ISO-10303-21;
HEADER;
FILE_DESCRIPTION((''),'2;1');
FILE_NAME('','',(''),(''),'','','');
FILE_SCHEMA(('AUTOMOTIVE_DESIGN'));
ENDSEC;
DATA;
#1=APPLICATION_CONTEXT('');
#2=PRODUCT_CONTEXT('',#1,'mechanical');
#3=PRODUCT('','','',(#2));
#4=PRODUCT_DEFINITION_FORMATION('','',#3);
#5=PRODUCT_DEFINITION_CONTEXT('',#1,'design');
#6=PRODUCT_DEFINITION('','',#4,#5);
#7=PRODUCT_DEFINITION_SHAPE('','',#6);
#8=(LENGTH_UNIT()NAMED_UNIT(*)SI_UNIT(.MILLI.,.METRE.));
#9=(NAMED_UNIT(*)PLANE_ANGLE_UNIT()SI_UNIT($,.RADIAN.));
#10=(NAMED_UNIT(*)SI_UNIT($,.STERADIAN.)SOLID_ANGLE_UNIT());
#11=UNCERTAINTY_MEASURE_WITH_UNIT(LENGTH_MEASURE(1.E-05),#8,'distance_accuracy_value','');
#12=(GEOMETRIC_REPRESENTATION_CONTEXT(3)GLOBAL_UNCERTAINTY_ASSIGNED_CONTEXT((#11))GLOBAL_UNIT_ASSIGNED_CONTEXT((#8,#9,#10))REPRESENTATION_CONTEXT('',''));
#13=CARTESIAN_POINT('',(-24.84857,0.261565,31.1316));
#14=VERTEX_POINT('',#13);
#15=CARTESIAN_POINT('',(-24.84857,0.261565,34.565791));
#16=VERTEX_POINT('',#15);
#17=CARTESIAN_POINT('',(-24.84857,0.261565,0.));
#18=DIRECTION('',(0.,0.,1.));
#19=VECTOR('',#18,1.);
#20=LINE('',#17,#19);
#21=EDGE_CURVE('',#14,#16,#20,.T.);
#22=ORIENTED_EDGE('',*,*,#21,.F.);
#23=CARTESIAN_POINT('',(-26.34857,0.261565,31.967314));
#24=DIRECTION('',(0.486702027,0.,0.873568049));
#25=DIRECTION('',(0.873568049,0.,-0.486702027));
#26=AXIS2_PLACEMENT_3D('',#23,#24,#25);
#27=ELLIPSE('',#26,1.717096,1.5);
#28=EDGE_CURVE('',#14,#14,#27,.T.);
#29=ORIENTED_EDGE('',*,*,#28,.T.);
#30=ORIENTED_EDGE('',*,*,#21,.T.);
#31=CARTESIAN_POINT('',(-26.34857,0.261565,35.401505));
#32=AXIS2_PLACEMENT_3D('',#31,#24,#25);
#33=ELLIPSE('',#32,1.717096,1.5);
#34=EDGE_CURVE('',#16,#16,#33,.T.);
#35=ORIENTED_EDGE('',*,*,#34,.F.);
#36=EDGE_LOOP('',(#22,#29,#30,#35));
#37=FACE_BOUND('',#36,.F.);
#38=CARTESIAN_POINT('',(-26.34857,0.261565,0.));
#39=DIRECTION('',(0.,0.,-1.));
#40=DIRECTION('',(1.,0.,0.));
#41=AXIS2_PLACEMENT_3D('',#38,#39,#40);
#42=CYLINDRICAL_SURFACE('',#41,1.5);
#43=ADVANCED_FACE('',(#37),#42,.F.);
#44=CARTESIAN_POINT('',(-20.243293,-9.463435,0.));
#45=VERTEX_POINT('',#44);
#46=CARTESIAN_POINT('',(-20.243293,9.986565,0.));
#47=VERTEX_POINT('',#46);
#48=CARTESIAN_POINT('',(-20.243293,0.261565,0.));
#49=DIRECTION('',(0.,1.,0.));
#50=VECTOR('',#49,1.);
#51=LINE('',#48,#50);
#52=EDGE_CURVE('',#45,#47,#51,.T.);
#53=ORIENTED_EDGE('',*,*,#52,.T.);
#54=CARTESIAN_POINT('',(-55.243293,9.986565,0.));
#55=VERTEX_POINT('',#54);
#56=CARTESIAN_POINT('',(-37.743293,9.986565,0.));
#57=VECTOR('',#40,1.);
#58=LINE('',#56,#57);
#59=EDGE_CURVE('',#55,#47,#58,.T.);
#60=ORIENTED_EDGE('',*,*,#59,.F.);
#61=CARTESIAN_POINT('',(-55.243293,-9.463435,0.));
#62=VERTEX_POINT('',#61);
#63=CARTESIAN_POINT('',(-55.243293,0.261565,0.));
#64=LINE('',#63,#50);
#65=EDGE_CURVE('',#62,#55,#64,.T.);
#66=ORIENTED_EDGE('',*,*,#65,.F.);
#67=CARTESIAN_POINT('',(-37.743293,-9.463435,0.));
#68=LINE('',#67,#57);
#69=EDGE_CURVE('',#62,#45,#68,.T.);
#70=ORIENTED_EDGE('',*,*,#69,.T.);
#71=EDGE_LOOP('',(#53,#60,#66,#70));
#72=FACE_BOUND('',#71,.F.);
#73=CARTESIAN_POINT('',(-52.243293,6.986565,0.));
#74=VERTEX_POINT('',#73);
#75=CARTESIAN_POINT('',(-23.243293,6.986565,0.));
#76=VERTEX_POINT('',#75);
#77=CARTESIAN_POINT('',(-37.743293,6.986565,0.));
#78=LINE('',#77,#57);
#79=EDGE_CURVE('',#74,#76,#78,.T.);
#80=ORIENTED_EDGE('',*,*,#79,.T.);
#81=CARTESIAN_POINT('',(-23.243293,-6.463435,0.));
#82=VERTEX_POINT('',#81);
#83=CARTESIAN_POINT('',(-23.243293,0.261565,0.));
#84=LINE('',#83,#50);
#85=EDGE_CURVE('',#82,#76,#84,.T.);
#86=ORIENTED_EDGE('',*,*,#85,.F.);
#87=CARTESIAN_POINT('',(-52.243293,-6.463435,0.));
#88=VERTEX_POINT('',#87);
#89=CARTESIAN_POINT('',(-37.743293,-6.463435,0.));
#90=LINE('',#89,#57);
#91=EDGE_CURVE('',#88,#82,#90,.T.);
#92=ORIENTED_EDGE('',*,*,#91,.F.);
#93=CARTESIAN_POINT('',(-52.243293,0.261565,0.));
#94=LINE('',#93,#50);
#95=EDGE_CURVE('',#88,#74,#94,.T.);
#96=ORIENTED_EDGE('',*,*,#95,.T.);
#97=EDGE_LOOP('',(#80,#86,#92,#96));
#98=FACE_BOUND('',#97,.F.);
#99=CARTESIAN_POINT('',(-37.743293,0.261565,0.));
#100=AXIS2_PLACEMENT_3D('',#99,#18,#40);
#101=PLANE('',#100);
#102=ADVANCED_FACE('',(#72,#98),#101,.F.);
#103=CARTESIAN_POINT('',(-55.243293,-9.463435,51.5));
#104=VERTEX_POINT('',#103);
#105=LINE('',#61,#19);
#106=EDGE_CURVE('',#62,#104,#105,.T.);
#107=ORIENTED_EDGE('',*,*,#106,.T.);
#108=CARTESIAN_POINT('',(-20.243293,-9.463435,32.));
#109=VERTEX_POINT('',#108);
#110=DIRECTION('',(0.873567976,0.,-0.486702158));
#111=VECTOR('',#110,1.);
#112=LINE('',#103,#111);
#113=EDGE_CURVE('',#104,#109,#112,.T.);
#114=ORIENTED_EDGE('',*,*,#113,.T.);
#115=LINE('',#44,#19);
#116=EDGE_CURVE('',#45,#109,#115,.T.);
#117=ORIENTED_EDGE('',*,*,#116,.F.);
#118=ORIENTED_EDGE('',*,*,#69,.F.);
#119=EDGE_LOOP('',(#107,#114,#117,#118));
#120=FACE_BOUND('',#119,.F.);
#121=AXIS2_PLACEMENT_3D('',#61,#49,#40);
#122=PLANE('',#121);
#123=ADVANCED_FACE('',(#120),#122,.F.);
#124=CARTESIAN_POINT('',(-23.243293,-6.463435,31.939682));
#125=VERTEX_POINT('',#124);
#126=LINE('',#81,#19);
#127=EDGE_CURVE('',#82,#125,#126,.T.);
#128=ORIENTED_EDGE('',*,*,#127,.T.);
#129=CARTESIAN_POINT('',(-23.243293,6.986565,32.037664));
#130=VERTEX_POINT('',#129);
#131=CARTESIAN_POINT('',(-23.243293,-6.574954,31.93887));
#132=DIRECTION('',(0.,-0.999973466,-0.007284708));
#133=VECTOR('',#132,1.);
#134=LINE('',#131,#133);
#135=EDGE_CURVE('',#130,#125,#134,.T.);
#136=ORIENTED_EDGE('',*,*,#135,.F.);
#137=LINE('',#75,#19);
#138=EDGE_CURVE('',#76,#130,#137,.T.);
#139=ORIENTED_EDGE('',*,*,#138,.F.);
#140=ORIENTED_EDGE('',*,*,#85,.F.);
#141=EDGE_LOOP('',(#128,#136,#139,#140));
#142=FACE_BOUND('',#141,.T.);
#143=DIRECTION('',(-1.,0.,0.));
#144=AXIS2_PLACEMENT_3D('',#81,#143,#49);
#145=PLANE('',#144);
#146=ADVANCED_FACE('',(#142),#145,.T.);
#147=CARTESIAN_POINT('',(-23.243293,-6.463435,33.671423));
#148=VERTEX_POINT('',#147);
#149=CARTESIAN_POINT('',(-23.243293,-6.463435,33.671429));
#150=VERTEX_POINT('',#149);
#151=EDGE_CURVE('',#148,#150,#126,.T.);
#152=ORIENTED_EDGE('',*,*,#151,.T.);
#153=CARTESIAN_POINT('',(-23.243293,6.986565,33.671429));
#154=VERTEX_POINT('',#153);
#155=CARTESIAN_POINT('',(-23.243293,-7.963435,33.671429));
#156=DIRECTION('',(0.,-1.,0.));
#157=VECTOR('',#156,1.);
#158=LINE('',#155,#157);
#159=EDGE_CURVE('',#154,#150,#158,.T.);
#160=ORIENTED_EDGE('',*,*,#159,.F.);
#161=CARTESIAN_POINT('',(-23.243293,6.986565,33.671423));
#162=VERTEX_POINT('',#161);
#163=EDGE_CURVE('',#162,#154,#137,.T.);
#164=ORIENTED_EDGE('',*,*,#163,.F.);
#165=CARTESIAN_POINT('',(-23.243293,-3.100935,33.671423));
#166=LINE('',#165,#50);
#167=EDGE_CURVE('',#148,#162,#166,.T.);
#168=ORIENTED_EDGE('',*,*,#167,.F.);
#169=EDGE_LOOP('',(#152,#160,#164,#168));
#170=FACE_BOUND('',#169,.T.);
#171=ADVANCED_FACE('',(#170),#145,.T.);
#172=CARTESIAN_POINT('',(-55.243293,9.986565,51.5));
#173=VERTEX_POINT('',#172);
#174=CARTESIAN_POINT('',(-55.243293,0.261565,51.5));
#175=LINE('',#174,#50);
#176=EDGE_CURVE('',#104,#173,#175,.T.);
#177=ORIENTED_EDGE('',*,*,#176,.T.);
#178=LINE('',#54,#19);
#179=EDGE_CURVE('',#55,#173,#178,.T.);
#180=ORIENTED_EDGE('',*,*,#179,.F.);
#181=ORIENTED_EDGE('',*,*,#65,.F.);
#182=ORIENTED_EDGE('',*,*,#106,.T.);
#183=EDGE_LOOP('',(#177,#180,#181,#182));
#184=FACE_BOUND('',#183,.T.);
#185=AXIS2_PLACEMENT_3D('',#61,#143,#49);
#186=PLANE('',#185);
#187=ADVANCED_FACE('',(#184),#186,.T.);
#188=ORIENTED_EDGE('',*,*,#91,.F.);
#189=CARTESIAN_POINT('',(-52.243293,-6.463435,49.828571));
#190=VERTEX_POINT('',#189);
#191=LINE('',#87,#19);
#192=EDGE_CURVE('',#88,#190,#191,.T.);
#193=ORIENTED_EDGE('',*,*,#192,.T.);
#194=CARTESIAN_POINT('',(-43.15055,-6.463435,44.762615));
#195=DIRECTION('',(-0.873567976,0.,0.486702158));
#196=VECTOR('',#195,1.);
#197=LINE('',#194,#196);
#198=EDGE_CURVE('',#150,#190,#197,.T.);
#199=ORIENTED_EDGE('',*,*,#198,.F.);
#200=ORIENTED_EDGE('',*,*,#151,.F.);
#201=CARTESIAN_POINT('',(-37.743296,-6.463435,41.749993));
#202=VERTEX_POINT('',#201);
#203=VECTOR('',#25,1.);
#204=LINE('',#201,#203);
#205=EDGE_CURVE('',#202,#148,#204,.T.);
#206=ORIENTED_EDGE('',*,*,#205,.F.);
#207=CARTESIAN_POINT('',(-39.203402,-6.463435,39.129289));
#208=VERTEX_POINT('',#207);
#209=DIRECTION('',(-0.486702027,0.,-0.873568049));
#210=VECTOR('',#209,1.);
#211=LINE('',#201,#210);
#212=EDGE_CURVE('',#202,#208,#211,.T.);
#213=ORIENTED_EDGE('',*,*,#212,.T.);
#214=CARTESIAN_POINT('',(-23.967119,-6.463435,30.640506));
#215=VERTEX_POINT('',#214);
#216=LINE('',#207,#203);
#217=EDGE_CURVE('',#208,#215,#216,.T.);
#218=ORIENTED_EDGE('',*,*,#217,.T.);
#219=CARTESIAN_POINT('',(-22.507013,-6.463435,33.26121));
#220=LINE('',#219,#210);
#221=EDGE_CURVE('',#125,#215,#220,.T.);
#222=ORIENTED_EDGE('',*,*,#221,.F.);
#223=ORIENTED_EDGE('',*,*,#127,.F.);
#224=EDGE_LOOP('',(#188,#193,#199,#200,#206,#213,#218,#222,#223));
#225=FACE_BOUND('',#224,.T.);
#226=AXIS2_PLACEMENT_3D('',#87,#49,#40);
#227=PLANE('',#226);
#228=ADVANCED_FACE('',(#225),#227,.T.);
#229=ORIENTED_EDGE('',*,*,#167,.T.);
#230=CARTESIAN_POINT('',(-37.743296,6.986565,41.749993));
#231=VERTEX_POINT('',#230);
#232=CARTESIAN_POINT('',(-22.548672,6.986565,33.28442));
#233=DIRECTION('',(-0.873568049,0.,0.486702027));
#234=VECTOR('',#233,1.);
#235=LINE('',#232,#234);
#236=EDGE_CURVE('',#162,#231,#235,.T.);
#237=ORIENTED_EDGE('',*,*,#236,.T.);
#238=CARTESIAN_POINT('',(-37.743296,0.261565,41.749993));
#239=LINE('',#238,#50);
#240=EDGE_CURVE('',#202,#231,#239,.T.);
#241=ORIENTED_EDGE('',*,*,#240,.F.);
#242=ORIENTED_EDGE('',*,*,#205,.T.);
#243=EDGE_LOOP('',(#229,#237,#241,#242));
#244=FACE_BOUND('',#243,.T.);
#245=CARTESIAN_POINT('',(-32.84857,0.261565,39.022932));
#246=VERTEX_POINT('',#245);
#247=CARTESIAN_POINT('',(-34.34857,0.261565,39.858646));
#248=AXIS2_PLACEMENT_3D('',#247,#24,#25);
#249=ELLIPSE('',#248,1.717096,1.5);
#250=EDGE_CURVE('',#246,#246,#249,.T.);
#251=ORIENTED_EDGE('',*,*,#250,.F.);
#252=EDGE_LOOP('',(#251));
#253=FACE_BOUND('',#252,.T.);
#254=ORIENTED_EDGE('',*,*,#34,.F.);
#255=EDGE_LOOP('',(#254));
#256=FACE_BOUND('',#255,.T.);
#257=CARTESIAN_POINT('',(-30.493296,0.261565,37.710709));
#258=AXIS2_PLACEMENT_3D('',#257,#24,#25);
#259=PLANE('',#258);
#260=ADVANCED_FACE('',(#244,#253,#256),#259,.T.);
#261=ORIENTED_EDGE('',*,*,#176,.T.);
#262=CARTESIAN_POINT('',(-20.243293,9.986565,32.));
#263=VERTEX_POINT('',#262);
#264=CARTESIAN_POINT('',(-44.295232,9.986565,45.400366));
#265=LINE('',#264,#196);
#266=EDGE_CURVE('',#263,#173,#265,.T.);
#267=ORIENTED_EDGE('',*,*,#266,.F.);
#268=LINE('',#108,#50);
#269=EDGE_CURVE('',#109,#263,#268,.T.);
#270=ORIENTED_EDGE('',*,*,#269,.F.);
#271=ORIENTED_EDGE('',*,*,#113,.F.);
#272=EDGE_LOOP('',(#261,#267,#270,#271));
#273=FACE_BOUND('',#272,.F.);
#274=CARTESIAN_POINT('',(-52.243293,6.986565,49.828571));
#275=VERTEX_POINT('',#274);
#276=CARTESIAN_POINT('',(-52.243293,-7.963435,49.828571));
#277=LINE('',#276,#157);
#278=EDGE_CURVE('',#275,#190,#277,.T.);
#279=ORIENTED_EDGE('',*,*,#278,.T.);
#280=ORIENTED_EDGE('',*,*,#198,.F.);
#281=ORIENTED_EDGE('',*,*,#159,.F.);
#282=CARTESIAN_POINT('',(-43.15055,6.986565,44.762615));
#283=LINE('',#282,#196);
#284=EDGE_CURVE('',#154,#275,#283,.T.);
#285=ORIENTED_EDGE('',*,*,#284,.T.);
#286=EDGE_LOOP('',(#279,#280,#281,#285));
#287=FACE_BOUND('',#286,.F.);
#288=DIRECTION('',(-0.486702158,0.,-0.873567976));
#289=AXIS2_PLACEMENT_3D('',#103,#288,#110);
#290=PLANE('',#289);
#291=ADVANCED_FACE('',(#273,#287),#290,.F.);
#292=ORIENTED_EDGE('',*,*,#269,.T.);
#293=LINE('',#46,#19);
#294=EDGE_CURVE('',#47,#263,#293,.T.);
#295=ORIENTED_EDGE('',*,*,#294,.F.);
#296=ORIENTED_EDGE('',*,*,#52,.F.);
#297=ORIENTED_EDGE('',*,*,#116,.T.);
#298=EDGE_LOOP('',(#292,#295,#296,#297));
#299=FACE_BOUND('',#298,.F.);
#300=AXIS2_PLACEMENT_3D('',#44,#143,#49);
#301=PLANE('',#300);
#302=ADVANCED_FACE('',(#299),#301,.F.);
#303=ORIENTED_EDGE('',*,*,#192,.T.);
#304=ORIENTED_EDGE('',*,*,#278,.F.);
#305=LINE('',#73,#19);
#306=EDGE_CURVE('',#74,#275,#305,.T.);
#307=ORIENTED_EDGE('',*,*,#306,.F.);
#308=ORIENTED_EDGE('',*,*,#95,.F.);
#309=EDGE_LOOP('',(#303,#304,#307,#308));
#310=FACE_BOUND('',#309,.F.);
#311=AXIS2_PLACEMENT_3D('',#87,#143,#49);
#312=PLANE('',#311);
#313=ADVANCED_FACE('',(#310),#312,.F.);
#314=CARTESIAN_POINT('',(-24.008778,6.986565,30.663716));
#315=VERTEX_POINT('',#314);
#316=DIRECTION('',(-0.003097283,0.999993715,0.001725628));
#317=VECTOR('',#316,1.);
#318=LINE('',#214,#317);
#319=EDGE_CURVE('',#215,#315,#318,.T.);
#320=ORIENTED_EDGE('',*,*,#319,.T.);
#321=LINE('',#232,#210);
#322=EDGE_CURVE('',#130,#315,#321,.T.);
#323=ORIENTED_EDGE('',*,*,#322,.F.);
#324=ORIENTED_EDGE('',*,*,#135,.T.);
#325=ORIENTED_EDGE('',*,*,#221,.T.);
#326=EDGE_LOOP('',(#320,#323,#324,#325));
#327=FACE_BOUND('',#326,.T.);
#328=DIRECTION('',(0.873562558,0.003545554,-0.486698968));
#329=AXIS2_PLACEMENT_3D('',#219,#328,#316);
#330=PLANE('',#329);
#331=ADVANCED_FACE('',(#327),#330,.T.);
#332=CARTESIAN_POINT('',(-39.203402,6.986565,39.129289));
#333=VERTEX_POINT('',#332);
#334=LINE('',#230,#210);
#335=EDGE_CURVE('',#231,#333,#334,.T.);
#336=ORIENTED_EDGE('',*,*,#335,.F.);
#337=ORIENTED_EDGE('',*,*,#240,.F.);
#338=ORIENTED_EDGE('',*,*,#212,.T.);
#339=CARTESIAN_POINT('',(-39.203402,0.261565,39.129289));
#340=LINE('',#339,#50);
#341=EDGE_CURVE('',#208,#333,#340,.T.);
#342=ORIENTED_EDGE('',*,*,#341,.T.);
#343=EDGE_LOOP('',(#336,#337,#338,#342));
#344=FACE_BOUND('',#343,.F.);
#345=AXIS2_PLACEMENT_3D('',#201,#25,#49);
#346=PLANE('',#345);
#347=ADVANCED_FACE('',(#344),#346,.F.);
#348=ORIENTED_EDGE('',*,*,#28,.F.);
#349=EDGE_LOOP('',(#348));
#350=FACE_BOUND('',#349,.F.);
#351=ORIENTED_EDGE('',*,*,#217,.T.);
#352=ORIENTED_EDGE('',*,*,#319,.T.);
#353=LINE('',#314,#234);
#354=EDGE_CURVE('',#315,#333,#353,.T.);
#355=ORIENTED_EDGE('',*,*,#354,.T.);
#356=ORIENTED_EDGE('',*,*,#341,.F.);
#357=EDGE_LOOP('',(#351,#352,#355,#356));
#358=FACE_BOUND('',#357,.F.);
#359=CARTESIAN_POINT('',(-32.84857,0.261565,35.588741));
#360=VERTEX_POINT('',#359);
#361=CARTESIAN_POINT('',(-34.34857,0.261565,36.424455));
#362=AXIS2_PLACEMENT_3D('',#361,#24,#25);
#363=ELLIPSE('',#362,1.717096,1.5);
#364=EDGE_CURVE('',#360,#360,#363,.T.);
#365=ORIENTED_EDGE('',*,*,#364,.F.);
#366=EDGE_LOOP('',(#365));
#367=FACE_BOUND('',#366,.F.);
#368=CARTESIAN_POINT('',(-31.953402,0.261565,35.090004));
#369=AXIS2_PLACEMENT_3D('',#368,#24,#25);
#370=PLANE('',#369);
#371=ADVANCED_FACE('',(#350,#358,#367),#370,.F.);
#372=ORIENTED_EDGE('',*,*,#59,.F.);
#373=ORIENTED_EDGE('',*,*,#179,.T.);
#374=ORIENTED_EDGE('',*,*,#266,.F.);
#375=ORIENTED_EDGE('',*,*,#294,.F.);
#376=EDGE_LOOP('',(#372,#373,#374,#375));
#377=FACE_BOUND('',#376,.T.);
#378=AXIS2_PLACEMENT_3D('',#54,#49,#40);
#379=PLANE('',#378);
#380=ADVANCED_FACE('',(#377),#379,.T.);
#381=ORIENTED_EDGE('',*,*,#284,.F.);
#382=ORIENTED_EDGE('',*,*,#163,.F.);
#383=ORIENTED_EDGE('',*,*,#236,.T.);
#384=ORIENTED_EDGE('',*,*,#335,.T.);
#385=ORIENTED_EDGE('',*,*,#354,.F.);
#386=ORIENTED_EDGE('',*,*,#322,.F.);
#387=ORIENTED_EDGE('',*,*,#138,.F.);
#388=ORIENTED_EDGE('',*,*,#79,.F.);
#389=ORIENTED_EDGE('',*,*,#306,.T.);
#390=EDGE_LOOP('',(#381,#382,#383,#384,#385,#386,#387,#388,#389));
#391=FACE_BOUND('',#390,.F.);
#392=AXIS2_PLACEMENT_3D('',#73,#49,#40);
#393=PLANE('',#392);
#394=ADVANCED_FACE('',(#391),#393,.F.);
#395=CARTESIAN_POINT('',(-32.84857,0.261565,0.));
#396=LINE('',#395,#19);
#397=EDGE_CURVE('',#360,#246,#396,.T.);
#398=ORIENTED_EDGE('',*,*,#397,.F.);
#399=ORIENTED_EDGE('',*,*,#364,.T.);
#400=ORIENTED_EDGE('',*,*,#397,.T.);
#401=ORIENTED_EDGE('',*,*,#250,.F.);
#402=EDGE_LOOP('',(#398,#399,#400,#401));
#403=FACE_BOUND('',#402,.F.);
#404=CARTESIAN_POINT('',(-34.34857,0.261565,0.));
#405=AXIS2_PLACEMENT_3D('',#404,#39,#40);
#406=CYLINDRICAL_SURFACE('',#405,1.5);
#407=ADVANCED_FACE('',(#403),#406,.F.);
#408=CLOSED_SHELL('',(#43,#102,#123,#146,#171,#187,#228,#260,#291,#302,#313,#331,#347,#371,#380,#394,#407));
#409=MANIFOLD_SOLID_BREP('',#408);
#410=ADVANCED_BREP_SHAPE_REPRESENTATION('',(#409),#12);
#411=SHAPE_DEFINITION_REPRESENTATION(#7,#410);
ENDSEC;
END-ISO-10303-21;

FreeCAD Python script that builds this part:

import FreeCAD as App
import Part
import Sketcher

doc = App.newDocument("Part")
body = doc.addObject("PartDesign::Body", "Body")

sketch1 = body.newObject("Sketcher::SketchObject", "Sketch")
sketch1.AttachmentSupport = (doc.getObject("XY_Plane"), [""])
sketch1.MapMode = "FlatFace"
sketch1.addGeometry([
    Part.LineSegment(App.Vector(-55.243293, 9.986565, 0), App.Vector(-55.243293, -9.463435, 0)),
    Part.LineSegment(App.Vector(-55.243293, -9.463435, 0), App.Vector(-20.243293, -9.463435, 0)),
    Part.LineSegment(App.Vector(-20.243293, -9.463435, 0), App.Vector(-20.243293, 9.986565, 0)),
    Part.LineSegment(App.Vector(-20.243293, 9.986565, 0), App.Vector(-55.243293, 9.986565, 0)),
    Part.LineSegment(App.Vector(-23.243293, -6.463435, 0), App.Vector(-52.243293, -6.463435, 0)),
    Part.LineSegment(App.Vector(-52.243293, -6.463435, 0), App.Vector(-52.243293, 6.986565, 0)),
    Part.LineSegment(App.Vector(-52.243293, 6.986565, 0), App.Vector(-23.243293, 6.986565, 0)),
    Part.LineSegment(App.Vector(-23.243293, 6.986565, 0), App.Vector(-23.243293, -6.463435, 0)),
], False)
sketch1.addConstraint([
    Sketcher.Constraint("Coincident", 0, 2, 1, 1),
    Sketcher.Constraint("Coincident", 1, 2, 2, 1),
    Sketcher.Constraint("Coincident", 2, 2, 3, 1),
    Sketcher.Constraint("Coincident", 3, 2, 0, 1),
    Sketcher.Constraint("Coincident", 4, 2, 5, 1),
    Sketcher.Constraint("Coincident", 5, 2, 6, 1),
    Sketcher.Constraint("Coincident", 6, 2, 7, 1),
    Sketcher.Constraint("Coincident", 7, 2, 4, 1),
    Sketcher.Constraint("Vertical", 0),
    Sketcher.Constraint("Horizontal", 1),
    Sketcher.Constraint("Vertical", 2),
    Sketcher.Constraint("Horizontal", 3),
    Sketcher.Constraint("Horizontal", 4),
    Sketcher.Constraint("Vertical", 5),
    Sketcher.Constraint("Horizontal", 6),
    Sketcher.Constraint("Vertical", 7),
    Sketcher.Constraint("DistanceX", 1, 1, 1, 2, 35.0),
    Sketcher.Constraint("DistanceX", 4, 2, 4, 1, 29.0),
    Sketcher.Constraint("DistanceX", 0, 2, 4, 2, 3.0),
    Sketcher.Constraint("DistanceY", 0, 2, 4, 2, 3.0),
    Sketcher.Constraint("DistanceY", 5, 2, 3, 2, 3.0),
    Sketcher.Constraint("DistanceY", 0, 2, 0, 1, 19.45),
    Sketcher.Constraint("DistanceX", 0, 2, -1, 1, 55.243293),
    Sketcher.Constraint("DistanceY", 0, 2, -1, 1, 9.463435),
])
pad1 = body.newObject("PartDesign::Pad", "Pad")
pad1.Profile = sketch1
pad1.Length = 51.5

sketch2 = body.newObject("Sketcher::SketchObject", "Sketch001")
sketch2.AttachmentSupport = (doc.getObject("XZ_Plane"), [""])
sketch2.MapMode = "FlatFace"
sketch2.AttachmentOffset = App.Placement(App.Vector(0, 0, 9.463435), App.Rotation())
sketch2.addGeometry([
    Part.LineSegment(App.Vector(-20.243293, 51.5, 0), App.Vector(-55.243293, 51.5, 0)),
    Part.LineSegment(App.Vector(-55.243293, 51.5, 0), App.Vector(-20.243293, 32, 0)),
    Part.LineSegment(App.Vector(-20.243293, 32, 0), App.Vector(-20.243293, 51.5, 0)),
], False)
sketch2.addConstraint([
    Sketcher.Constraint("Coincident", 0, 2, 1, 1),
    Sketcher.Constraint("Coincident", 1, 2, 2, 1),
    Sketcher.Constraint("Coincident", 2, 2, 0, 1),
    Sketcher.Constraint("Horizontal", 0),
    Sketcher.Constraint("Vertical", 2),
    Sketcher.Constraint("DistanceX", 0, 2, 0, 1, 35.0),
    Sketcher.Constraint("DistanceY", 2, 1, 2, 2, 19.5),
    Sketcher.Constraint("DistanceY", -1, 1, 1, 2, 32.0),
    Sketcher.Constraint("DistanceX", 0, 2, -1, 1, 55.243293),
])
pocket1 = body.newObject("PartDesign::Pocket", "Pocket")
pocket1.Profile = sketch2
pocket1.Length = 25

sketch3 = body.newObject("Sketcher::SketchObject", "Sketch002")
sketch3.Placement = App.Placement(App.Vector(8.810147, 0, 15.813084), App.Rotation(App.Vector(0.873568049, 0, -0.486702027), App.Vector(0, 0.999999999, 0), App.Vector(0.486702027, 0, 0.873568049), "ZXY"))
sketch3.addGeometry([
    Part.LineSegment(App.Vector(-53.291147, 6.986565, 0), App.Vector(-53.291147, -6.463435, 0)),
    Part.LineSegment(App.Vector(-53.291147, -6.463435, 0), App.Vector(-35.849709, -6.463435, 0)),
    Part.LineSegment(App.Vector(-35.849709, -6.463435, 0), App.Vector(-35.897397, 6.986565, 0)),
    Part.LineSegment(App.Vector(-35.897397, 6.986565, 0), App.Vector(-53.291147, 6.986565, 0)),
], False)
sketch3.addConstraint([
    Sketcher.Constraint("Coincident", 0, 2, 1, 1),
    Sketcher.Constraint("Coincident", 1, 2, 2, 1),
    Sketcher.Constraint("Coincident", 2, 2, 3, 1),
    Sketcher.Constraint("Coincident", 3, 2, 0, 1),
    Sketcher.Constraint("Vertical", 0),
    Sketcher.Constraint("Horizontal", 1),
    Sketcher.Constraint("Horizontal", 3),
    Sketcher.Constraint("DistanceY", 0, 2, 0, 1, 13.45),
    Sketcher.Constraint("DistanceX", 3, 2, 3, 1, 17.39375),
    Sketcher.Constraint("DistanceX", 1, 1, 1, 2, 17.441438),
    Sketcher.Constraint("DistanceX", 1, 2, -1, 1, 35.849709),
    Sketcher.Constraint("DistanceY", 0, 2, -1, 1, 6.463435),
])
pad2 = body.newObject("PartDesign::Pad", "Pad001")
pad2.Profile = sketch3
pad2.Length = 3
pad2.Reversed = True

sketch4 = body.newObject("Sketcher::SketchObject", "Sketch003")
sketch4.AttachmentSupport = (doc.getObject("XY_Plane"), [""])
sketch4.MapMode = "FlatFace"
sketch4.addGeometry([
    Part.Circle(App.Vector(-26.34857, 0.261565, 0), App.Vector(0, 0, 1), 1.5),
    Part.Circle(App.Vector(-34.34857, 0.261565, 0), App.Vector(0, 0, 1), 1.5),
], False)
sketch4.addConstraint([
    Sketcher.Constraint("Equal", 0, 1),
    Sketcher.Constraint("Horizontal", 0, 3, 1, 3),
    Sketcher.Constraint("Diameter", 0, 3.0),
    Sketcher.Constraint("DistanceX", 1, 3, 0, 3, 8.0),
    Sketcher.Constraint("DistanceX", 0, 3, -1, 1, 26.34857),
    Sketcher.Constraint("DistanceY", -1, 1, 0, 3, 0.261565),
])
pocket2 = body.newObject("PartDesign::Pocket", "Pocket001")
pocket2.Profile = sketch4
pocket2.Length = 46.3
pocket2.Reversed = True

doc.recompute()
